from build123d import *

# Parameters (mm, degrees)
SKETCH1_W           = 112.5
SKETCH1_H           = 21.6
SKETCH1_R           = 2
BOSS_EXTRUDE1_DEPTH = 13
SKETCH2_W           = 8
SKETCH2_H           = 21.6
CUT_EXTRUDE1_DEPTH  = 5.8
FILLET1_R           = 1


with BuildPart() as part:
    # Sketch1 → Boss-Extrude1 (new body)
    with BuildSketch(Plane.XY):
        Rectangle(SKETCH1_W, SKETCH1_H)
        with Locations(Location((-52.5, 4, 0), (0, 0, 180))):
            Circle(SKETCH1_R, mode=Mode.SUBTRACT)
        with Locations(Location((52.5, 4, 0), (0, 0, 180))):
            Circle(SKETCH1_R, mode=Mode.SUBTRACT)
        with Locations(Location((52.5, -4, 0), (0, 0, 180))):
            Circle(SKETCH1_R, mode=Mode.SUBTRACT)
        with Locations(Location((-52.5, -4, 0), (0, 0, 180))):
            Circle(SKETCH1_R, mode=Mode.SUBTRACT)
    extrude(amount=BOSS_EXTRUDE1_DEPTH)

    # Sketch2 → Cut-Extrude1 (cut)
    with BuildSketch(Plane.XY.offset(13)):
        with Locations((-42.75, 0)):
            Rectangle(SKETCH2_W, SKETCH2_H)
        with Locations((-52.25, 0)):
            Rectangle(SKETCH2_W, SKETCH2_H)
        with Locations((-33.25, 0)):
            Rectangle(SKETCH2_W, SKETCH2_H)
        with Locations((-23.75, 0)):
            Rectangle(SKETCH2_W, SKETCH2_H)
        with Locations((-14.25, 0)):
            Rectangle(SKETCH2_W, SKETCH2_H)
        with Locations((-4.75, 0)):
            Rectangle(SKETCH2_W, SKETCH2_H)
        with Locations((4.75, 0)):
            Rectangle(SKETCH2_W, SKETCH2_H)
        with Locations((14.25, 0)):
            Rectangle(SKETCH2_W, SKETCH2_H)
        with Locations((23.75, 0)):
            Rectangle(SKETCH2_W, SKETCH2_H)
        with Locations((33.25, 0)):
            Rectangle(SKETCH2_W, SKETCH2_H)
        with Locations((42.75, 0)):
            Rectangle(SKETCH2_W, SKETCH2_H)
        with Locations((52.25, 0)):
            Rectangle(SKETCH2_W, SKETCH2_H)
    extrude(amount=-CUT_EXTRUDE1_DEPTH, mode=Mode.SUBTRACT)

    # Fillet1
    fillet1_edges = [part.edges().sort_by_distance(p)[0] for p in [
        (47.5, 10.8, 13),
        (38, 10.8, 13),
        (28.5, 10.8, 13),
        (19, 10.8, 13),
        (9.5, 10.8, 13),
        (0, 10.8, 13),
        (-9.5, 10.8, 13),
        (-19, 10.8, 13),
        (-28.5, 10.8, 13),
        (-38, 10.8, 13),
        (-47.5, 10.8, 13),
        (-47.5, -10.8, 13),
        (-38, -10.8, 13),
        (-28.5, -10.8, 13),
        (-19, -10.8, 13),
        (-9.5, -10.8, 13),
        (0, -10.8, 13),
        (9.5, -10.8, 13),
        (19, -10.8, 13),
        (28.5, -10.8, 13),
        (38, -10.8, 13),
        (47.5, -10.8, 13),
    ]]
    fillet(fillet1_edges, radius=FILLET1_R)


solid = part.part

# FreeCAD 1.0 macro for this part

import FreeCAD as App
import Part
import Sketcher
from FreeCAD import Vector
Q = App.Units.Quantity


def edges_at(feature, points):
    """Names of the edges that pass closest to the given points."""
    edges = feature.Shape.Edges
    near = lambda p: min(range(len(edges)), key=lambda i: edges[i].distToShape(Part.Vertex(*p))[0])
    return sorted({f"Edge{near(p) + 1}" for p in points})


def add_polygon(sketch, points):
    """Adds a closed chain of lines whose ends are joined by coincident constraints."""
    first, n = sketch.GeometryCount, len(points)
    for a, b in zip(points, points[1:] + points[:1]):
        sketch.addGeometry(Part.LineSegment(App.Vector(*a, 0), App.Vector(*b, 0)), False)
    for i in range(n):
        sketch.addConstraint(Sketcher.Constraint("Coincident", first + i, 2, first + (i + 1) % n, 1))

doc = App.newDocument("Part")
body = doc.addObject("PartDesign::Body", "Body")

sketch1 = doc.addObject("Sketcher::SketchObject", "Sketch")
body.addObject(sketch1)
sketch1.AttachmentSupport = (doc.XY_Plane, [""])
sketch1.MapMode = "FlatFace"
add_polygon(sketch1, [(-56.2, 10.8), (-56.2, -10.8), (56.2, -10.8), (56.2, 10.8)])
sketch1.addGeometry(Part.Circle(Vector(-52.5, -4, 0), Vector(0, 0, 1), 2), False)
sketch1.addGeometry(Part.Circle(Vector(52.5, -4, 0), Vector(0, 0, 1), 2), False)
sketch1.addGeometry(Part.Circle(Vector(-52.5, 4, 0), Vector(0, 0, 1), 2), False)
sketch1.addGeometry(Part.Circle(Vector(52.5, 4, 0), Vector(0, 0, 1), 2), False)
sketch1.addConstraint([
    Sketcher.Constraint("Vertical", 0),
    Sketcher.Constraint("Horizontal", 1),
    Sketcher.Constraint("Vertical", 2),
    Sketcher.Constraint("Horizontal", 3),
    Sketcher.Constraint("Equal", 4, 5),
    Sketcher.Constraint("Equal", 5, 6),
    Sketcher.Constraint("Equal", 6, 7),
    Sketcher.Constraint("Symmetric", 5, 3, 6, 3, -1, 1),
    Sketcher.Constraint("Symmetric", 4, 3, 7, 3, -1, 1),
    Sketcher.Constraint("Symmetric", 0, 2, 2, 2, -1, 1),
    Sketcher.Constraint("Symmetric", 4, 3, 5, 3, -2),
    Sketcher.Constraint("Diameter", 4, Q("4 mm")),
    Sketcher.Constraint("DistanceX", 1, 1, 1, 2, Q("112.5 mm")),
    Sketcher.Constraint("DistanceY", 0, 2, 0, 1, Q("21.6 mm")),
    Sketcher.Constraint("DistanceY", 4, 3, -1, 1, Q("4 mm")),
    Sketcher.Constraint("DistanceX", 4, 3, 5, 3, Q("105 mm")),
])
pad1 = doc.addObject("PartDesign::Pad", "Pad")
body.addObject(pad1)
pad1.Profile = sketch1
pad1.Length = 13

sketch2 = doc.addObject("Sketcher::SketchObject", "Sketch001")
body.addObject(sketch2)
sketch2.AttachmentSupport = (doc.XY_Plane, [""])
sketch2.MapMode = "FlatFace"
sketch2.AttachmentOffset = App.Placement(Vector(0, 0, 13), App.Rotation())
add_polygon(sketch2, [(-47, 11), (-47, -11), (-39, -11), (-39, 11)])
add_polygon(sketch2, [(-56, 11), (-56, -11), (-48, -11), (-48, 11)])
add_polygon(sketch2, [(-37, 11), (-37, -11), (-29, -11), (-29, 11)])
add_polygon(sketch2, [(-28, 11), (-28, -11), (-20, -11), (-20, 11)])
add_polygon(sketch2, [(-18, 11), (-18, -11), (-10, -11), (-10, 11)])
add_polygon(sketch2, [(-9, 11), (-9, -11), (-1, -11), (-1, 11)])
add_polygon(sketch2, [(1, 11), (1, -11), (9, -11), (9, 11)])
add_polygon(sketch2, [(10, 11), (10, -11), (18, -11), (18, 11)])
add_polygon(sketch2, [(20, 11), (20, -11), (28, -11), (28, 11)])
add_polygon(sketch2, [(29, 11), (29, -11), (37, -11), (37, 11)])
add_polygon(sketch2, [(39, 11), (39, -11), (47, -11), (47, 11)])
add_polygon(sketch2, [(48, 11), (48, -11), (56, -11), (56, 11)])
sketch2.addConstraint([
    Sketcher.Constraint("Vertical", 0),
    Sketcher.Constraint("Horizontal", 1),
    Sketcher.Constraint("Vertical", 2),
    Sketcher.Constraint("Horizontal", 3),
    Sketcher.Constraint("Vertical", 4),
    Sketcher.Constraint("Horizontal", 5),
    Sketcher.Constraint("Vertical", 6),
    Sketcher.Constraint("Horizontal", 7),
    Sketcher.Constraint("Vertical", 8),
    Sketcher.Constraint("Horizontal", 9),
    Sketcher.Constraint("Vertical", 10),
    Sketcher.Constraint("Horizontal", 11),
    Sketcher.Constraint("Vertical", 12),
    Sketcher.Constraint("Horizontal", 13),
    Sketcher.Constraint("Vertical", 14),
    Sketcher.Constraint("Horizontal", 15),
    Sketcher.Constraint("Vertical", 16),
    Sketcher.Constraint("Horizontal", 17),
    Sketcher.Constraint("Vertical", 18),
    Sketcher.Constraint("Horizontal", 19),
    Sketcher.Constraint("Vertical", 20),
    Sketcher.Constraint("Horizontal", 21),
    Sketcher.Constraint("Vertical", 22),
    Sketcher.Constraint("Horizontal", 23),
    Sketcher.Constraint("Vertical", 24),
    Sketcher.Constraint("Horizontal", 25),
    Sketcher.Constraint("Vertical", 26),
    Sketcher.Constraint("Horizontal", 27),
    Sketcher.Constraint("Vertical", 28),
    Sketcher.Constraint("Horizontal", 29),
    Sketcher.Constraint("Vertical", 30),
    Sketcher.Constraint("Horizontal", 31),
    Sketcher.Constraint("Vertical", 32),
    Sketcher.Constraint("Horizontal", 33),
    Sketcher.Constraint("Vertical", 34),
    Sketcher.Constraint("Horizontal", 35),
    Sketcher.Constraint("Vertical", 36),
    Sketcher.Constraint("Horizontal", 37),
    Sketcher.Constraint("Vertical", 38),
    Sketcher.Constraint("Horizontal", 39),
    Sketcher.Constraint("Vertical", 40),
    Sketcher.Constraint("Horizontal", 41),
    Sketcher.Constraint("Vertical", 42),
    Sketcher.Constraint("Horizontal", 43),
    Sketcher.Constraint("Vertical", 44),
    Sketcher.Constraint("Horizontal", 45),
    Sketcher.Constraint("Vertical", 46),
    Sketcher.Constraint("Horizontal", 47),
    Sketcher.Constraint("Symmetric", 22, 2, 24, 2, -1, 1),
    Sketcher.Constraint("Symmetric", 20, 2, 26, 2, -1, 1),
    Sketcher.Constraint("Symmetric", 18, 2, 28, 2, -1, 1),
    Sketcher.Constraint("Symmetric", 16, 2, 30, 2, -1, 1),
    Sketcher.Constraint("Symmetric", 14, 2, 32, 2, -1, 1),
    Sketcher.Constraint("Symmetric", 12, 2, 34, 2, -1, 1),
    Sketcher.Constraint("Symmetric", 10, 2, 36, 2, -1, 1),
    Sketcher.Constraint("Symmetric", 8, 2, 38, 2, -1, 1),
    Sketcher.Constraint("Symmetric", 2, 2, 40, 2, -1, 1),
    Sketcher.Constraint("Symmetric", 0, 2, 42, 2, -1, 1),
    Sketcher.Constraint("Symmetric", 6, 2, 44, 2, -1, 1),
    Sketcher.Constraint("Symmetric", 4, 2, 46, 2, -1, 1),
    Sketcher.Constraint("Horizontal", 1, 2, 4, 2),
    Sketcher.Constraint("Horizontal", 3, 2, 6, 2),
    Sketcher.Constraint("Horizontal", 5, 2, 8, 2),
    Sketcher.Constraint("Horizontal", 7, 2, 10, 2),
    Sketcher.Constraint("Horizontal", 9, 2, 12, 2),
    Sketcher.Constraint("Horizontal", 11, 2, 14, 2),
    Sketcher.Constraint("Horizontal", 13, 2, 16, 2),
    Sketcher.Constraint("Horizontal", 15, 2, 18, 2),
    Sketcher.Constraint("Horizontal", 17, 2, 20, 2),
    Sketcher.Constraint("Horizontal", 19, 2, 22, 2),
    Sketcher.Constraint("Horizontal", 21, 2, 24, 2),
    Sketcher.Constraint("Equal", 3, 5),
    Sketcher.Constraint("Equal", 7, 9),
    Sketcher.Constraint("Equal", 11, 13),
    Sketcher.Constraint("Equal", 15, 17),
    Sketcher.Constraint("Equal", 19, 21),
    Sketcher.Constraint("DistanceX", 1, 1, 1, 2, Q("8 mm")),
    Sketcher.Constraint("DistanceY", 0, 2, 0, 1, Q("21.6 mm")),
    Sketcher.Constraint("DistanceX", 5, 2, 8, 2, Q("11 mm")),
    Sketcher.Constraint("DistanceX", 1, 2, 12, 2, Q("11 mm")),
    Sketcher.Constraint("DistanceX", 9, 2, 16, 2, Q("11 mm")),
    Sketcher.Constraint("DistanceX", 13, 2, 20, 2, Q("11 mm")),
    Sketcher.Constraint("DistanceX", 17, 2, 24, 2, Q("11 mm")),
    Sketcher.Constraint("DistanceX", 4, 2, 0, 2, Q("9.5 mm")),
])
pocket1 = doc.addObject("PartDesign::Pocket", "Pocket")
body.addObject(pocket1)
pocket1.Profile = sketch2
pocket1.Length = 5.8
doc.recompute()

fillet = doc.addObject("PartDesign::Fillet", "Fillet")
body.addObject(fillet)
fillet.Base = (pocket1, edges_at(pocket1, [
    (47.5, 10.8, 13),
    (38, 10.8, 13),
    (28.5, 10.8, 13),
    (19, 10.8, 13),
    (9.5, 10.8, 13),
    (0, 10.8, 13),
    (-9.5, 10.8, 13),
    (-19, 10.8, 13),
    (-28.5, 10.8, 13),
    (-38, 10.8, 13),
    (-47.5, 10.8, 13),
    (-47.5, -10.8, 13),
    (-38, -10.8, 13),
    (-28.5, -10.8, 13),
    (-19, -10.8, 13),
    (-9.5, -10.8, 13),
    (0, -10.8, 13),
    (9.5, -10.8, 13),
    (19, -10.8, 13),
    (28.5, -10.8, 13),
    (38, -10.8, 13),
    (47.5, -10.8, 13),
]))
fillet.Radius = 1

doc.recompute()
